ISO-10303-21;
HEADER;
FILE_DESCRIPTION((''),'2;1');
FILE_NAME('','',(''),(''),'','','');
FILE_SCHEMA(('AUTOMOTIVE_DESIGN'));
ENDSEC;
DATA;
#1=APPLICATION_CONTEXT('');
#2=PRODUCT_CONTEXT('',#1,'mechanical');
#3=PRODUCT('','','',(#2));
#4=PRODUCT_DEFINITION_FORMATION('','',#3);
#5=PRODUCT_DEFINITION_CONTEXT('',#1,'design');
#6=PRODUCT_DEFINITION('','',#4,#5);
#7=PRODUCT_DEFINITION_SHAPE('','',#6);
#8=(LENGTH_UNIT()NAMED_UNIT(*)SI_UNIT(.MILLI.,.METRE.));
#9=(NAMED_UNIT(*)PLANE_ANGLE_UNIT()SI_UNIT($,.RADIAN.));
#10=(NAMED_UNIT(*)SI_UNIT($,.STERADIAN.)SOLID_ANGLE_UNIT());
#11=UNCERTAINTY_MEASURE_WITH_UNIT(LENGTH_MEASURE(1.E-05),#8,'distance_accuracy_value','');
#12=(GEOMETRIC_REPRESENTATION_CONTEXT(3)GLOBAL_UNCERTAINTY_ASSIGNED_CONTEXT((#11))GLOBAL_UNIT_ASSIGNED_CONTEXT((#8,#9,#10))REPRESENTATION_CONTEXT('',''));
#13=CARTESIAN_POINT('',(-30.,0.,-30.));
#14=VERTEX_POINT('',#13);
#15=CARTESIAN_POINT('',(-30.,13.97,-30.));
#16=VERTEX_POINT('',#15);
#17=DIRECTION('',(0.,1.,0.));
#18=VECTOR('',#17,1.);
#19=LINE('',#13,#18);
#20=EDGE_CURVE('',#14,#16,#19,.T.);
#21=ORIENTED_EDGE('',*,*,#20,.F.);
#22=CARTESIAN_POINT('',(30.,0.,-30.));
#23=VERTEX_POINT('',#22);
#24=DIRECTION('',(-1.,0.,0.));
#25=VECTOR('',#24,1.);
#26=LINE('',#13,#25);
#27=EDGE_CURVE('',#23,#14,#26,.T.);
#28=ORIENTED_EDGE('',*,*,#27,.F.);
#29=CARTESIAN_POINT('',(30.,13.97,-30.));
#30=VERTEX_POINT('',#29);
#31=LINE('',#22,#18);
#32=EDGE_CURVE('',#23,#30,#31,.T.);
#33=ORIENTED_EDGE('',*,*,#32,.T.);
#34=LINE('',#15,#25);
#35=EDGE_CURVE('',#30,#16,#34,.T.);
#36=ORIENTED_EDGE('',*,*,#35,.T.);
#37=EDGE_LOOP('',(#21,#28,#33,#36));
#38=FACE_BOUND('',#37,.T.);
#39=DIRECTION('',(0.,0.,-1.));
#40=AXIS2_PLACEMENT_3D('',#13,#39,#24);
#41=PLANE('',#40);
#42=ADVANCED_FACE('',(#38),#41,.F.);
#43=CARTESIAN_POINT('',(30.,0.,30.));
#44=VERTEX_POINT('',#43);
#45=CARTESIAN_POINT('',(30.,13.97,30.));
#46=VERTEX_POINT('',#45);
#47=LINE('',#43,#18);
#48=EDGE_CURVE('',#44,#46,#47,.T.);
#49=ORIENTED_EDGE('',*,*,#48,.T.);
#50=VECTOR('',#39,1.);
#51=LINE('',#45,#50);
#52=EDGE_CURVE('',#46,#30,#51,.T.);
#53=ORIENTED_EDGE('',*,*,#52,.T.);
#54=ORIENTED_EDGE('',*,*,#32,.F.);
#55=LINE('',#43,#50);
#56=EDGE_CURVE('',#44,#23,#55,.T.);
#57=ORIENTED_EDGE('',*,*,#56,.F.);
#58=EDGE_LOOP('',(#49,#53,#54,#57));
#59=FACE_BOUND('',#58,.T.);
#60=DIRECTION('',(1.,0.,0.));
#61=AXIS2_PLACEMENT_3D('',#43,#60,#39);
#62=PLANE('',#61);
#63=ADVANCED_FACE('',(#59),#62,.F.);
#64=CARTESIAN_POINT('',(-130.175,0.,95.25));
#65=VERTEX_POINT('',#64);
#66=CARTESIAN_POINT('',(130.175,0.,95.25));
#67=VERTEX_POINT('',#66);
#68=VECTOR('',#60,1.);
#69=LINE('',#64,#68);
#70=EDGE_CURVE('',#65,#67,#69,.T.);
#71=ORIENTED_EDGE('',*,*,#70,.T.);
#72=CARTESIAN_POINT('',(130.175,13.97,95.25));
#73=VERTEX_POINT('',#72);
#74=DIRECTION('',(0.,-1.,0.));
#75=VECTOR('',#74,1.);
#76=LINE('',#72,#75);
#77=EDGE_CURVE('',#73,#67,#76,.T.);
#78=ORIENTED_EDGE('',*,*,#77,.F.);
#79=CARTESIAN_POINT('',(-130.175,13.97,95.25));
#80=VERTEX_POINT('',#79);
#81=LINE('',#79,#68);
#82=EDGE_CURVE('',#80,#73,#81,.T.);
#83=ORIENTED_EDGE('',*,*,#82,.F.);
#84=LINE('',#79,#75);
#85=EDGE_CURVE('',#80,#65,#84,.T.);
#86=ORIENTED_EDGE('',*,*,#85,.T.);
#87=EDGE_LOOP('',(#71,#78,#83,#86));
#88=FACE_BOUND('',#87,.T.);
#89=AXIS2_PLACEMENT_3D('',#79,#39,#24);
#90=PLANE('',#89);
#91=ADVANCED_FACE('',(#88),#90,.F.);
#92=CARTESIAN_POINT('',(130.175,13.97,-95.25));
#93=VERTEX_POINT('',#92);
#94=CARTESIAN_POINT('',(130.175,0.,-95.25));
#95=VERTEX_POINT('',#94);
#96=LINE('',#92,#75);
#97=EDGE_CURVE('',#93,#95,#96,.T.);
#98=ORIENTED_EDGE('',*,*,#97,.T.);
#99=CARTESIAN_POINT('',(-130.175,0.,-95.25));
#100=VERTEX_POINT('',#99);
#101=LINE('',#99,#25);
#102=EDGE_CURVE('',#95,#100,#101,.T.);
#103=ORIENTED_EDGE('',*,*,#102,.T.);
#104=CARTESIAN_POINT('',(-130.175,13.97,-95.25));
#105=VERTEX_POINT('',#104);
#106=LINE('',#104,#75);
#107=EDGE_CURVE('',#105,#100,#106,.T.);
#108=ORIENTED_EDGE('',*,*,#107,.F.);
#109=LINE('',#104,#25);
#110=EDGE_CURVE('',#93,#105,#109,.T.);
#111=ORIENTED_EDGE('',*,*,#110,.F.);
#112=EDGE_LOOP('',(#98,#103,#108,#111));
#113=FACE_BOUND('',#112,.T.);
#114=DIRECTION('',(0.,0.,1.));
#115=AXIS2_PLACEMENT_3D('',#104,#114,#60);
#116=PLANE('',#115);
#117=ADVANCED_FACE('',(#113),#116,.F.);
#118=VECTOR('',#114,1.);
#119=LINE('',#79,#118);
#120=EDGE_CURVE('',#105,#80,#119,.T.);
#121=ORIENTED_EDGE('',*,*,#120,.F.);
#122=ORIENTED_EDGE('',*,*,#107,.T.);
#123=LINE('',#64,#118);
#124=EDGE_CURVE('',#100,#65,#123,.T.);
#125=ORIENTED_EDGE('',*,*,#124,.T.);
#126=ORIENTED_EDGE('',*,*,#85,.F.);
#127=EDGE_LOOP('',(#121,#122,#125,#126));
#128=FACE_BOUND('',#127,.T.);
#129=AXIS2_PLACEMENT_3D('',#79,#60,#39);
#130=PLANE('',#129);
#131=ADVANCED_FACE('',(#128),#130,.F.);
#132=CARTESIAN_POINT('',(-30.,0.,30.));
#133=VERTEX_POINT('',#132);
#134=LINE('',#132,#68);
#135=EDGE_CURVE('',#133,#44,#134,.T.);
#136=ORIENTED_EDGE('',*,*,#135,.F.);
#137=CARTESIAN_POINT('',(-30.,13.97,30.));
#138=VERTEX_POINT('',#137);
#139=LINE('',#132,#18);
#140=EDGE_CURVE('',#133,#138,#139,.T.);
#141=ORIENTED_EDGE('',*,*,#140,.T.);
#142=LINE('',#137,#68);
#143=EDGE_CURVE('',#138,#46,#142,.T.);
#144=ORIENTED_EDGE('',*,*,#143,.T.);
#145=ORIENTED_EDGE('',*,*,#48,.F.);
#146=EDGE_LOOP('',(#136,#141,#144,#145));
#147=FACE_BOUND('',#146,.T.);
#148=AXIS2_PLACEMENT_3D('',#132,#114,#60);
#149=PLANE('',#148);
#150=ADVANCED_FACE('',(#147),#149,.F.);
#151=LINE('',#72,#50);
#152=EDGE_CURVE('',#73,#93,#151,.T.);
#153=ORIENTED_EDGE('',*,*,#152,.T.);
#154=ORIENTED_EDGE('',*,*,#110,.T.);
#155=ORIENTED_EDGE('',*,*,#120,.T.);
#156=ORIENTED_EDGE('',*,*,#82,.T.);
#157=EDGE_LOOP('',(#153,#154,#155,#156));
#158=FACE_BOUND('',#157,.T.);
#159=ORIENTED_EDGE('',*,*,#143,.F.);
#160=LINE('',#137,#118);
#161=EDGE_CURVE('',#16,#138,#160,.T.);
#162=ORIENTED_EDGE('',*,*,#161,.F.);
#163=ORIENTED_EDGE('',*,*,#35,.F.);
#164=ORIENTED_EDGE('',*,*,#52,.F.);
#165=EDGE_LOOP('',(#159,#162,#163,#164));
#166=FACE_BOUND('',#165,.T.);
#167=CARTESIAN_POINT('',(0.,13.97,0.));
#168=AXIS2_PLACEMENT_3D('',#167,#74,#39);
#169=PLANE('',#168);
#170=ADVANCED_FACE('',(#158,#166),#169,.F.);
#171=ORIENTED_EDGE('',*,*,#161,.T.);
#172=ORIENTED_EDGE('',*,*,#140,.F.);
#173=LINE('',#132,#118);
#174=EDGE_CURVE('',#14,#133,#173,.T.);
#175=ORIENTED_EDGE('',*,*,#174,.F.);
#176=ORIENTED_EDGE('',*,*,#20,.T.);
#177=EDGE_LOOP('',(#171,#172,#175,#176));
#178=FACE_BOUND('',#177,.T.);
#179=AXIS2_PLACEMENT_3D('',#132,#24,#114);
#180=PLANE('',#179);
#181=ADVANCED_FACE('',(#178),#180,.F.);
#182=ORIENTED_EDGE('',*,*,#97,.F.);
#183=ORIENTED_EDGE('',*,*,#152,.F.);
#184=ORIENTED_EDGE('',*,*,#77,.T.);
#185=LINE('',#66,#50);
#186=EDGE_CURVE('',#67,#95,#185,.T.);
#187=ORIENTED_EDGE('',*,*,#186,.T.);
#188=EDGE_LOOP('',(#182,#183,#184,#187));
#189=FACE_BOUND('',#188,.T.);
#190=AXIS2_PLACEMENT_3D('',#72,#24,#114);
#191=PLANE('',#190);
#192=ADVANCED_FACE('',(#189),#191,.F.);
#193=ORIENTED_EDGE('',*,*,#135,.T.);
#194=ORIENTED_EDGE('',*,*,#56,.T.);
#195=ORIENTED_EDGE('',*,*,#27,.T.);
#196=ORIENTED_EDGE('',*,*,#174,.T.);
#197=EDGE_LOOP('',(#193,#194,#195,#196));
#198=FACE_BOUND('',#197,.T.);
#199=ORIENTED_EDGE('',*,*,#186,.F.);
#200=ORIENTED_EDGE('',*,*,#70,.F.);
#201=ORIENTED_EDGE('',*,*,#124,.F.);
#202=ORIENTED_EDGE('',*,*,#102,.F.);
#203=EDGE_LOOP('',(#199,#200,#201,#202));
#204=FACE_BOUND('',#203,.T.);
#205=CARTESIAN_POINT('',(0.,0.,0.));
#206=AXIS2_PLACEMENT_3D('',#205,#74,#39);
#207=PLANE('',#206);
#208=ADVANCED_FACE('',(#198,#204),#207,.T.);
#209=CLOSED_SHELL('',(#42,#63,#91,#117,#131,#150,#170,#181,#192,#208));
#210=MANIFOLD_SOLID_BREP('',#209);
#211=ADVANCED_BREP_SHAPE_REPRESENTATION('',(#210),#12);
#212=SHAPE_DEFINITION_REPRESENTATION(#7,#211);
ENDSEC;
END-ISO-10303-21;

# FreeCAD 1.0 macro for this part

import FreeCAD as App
import Part
import Sketcher
from FreeCAD import Vector
Q = App.Units.Quantity

doc = App.newDocument("Part")
body = doc.addObject("PartDesign::Body", "Body")

# Sketch on XZ plane
sketch1 = body.newObject("Sketcher::SketchObject", "Sketch")
sketch1.AttachmentSupport = (doc.getObject("XZ_Plane"), [""])
sketch1.MapMode = "FlatFace"
sketch1.addGeometry([
    Part.LineSegment(Vector(-130, -95, 0), Vector(-130, 95, 0)),
    Part.LineSegment(Vector(-130, 95, 0), Vector(130, 95, 0)),
    Part.LineSegment(Vector(130, 95, 0), Vector(130, -95, 0)),
    Part.LineSegment(Vector(130, -95, 0), Vector(-130, -95, 0)),
], False)
sketch1.addConstraint([
    Sketcher.Constraint("Coincident", 0, 2, 1, 1),
    Sketcher.Constraint("Coincident", 1, 2, 2, 1),
    Sketcher.Constraint("Coincident", 2, 2, 3, 1),
    Sketcher.Constraint("Coincident", 3, 2, 0, 1),
    Sketcher.Constraint("Vertical", 0),
    Sketcher.Constraint("Horizontal", 1),
    Sketcher.Constraint("Vertical", 2),
    Sketcher.Constraint("Horizontal", 3),
    Sketcher.Constraint("Symmetric", 0, 2, 2, 2, -1, 1),
    Sketcher.Constraint("DistanceY", 0, 1, 0, 2, Q("7.5 in")),
    Sketcher.Constraint("DistanceX", 1, 1, 1, 2, Q("10.25 in")),
])
pad1 = body.newObject("PartDesign::Pad", "Pad")
pad1.Profile = sketch1
pad1.Length = Q("0.55 in")
pad1.Reversed = True

# Sketch on XZ plane
sketch2 = body.newObject("Sketcher::SketchObject", "Sketch001")
sketch2.AttachmentSupport = (doc.getObject("XZ_Plane"), [""])
sketch2.MapMode = "FlatFace"
sketch2.AttachmentOffset = App.Placement(Vector(0, 0, -0.55 * 25.4), App.Rotation())
sketch2.addGeometry([
    Part.LineSegment(Vector(-30, -30, 0), Vector(-30, 30, 0)),
    Part.LineSegment(Vector(-30, 30, 0), Vector(30, 30, 0)),
    Part.LineSegment(Vector(30, 30, 0), Vector(30, -30, 0)),
    Part.LineSegment(Vector(30, -30, 0), Vector(-30, -30, 0)),
], False)
sketch2.addConstraint([
    Sketcher.Constraint("Coincident", 0, 2, 1, 1),
    Sketcher.Constraint("Coincident", 1, 2, 2, 1),
    Sketcher.Constraint("Coincident", 2, 2, 3, 1),
    Sketcher.Constraint("Coincident", 3, 2, 0, 1),
    Sketcher.Constraint("Vertical", 0),
    Sketcher.Constraint("Horizontal", 1),
    Sketcher.Constraint("Vertical", 2),
    Sketcher.Constraint("Horizontal", 3),
    Sketcher.Constraint("Symmetric", 0, 2, 2, 2, -1, 1),
    Sketcher.Constraint("Equal", 3, 0),
    Sketcher.Constraint("DistanceX", 1, 1, 1, 2, 60.0),
])
pocket1 = body.newObject("PartDesign::Pocket", "Pocket")
pocket1.Profile = sketch2
pocket1.Type = "ThroughAll"
pocket1.Reversed = True

doc.recompute()
